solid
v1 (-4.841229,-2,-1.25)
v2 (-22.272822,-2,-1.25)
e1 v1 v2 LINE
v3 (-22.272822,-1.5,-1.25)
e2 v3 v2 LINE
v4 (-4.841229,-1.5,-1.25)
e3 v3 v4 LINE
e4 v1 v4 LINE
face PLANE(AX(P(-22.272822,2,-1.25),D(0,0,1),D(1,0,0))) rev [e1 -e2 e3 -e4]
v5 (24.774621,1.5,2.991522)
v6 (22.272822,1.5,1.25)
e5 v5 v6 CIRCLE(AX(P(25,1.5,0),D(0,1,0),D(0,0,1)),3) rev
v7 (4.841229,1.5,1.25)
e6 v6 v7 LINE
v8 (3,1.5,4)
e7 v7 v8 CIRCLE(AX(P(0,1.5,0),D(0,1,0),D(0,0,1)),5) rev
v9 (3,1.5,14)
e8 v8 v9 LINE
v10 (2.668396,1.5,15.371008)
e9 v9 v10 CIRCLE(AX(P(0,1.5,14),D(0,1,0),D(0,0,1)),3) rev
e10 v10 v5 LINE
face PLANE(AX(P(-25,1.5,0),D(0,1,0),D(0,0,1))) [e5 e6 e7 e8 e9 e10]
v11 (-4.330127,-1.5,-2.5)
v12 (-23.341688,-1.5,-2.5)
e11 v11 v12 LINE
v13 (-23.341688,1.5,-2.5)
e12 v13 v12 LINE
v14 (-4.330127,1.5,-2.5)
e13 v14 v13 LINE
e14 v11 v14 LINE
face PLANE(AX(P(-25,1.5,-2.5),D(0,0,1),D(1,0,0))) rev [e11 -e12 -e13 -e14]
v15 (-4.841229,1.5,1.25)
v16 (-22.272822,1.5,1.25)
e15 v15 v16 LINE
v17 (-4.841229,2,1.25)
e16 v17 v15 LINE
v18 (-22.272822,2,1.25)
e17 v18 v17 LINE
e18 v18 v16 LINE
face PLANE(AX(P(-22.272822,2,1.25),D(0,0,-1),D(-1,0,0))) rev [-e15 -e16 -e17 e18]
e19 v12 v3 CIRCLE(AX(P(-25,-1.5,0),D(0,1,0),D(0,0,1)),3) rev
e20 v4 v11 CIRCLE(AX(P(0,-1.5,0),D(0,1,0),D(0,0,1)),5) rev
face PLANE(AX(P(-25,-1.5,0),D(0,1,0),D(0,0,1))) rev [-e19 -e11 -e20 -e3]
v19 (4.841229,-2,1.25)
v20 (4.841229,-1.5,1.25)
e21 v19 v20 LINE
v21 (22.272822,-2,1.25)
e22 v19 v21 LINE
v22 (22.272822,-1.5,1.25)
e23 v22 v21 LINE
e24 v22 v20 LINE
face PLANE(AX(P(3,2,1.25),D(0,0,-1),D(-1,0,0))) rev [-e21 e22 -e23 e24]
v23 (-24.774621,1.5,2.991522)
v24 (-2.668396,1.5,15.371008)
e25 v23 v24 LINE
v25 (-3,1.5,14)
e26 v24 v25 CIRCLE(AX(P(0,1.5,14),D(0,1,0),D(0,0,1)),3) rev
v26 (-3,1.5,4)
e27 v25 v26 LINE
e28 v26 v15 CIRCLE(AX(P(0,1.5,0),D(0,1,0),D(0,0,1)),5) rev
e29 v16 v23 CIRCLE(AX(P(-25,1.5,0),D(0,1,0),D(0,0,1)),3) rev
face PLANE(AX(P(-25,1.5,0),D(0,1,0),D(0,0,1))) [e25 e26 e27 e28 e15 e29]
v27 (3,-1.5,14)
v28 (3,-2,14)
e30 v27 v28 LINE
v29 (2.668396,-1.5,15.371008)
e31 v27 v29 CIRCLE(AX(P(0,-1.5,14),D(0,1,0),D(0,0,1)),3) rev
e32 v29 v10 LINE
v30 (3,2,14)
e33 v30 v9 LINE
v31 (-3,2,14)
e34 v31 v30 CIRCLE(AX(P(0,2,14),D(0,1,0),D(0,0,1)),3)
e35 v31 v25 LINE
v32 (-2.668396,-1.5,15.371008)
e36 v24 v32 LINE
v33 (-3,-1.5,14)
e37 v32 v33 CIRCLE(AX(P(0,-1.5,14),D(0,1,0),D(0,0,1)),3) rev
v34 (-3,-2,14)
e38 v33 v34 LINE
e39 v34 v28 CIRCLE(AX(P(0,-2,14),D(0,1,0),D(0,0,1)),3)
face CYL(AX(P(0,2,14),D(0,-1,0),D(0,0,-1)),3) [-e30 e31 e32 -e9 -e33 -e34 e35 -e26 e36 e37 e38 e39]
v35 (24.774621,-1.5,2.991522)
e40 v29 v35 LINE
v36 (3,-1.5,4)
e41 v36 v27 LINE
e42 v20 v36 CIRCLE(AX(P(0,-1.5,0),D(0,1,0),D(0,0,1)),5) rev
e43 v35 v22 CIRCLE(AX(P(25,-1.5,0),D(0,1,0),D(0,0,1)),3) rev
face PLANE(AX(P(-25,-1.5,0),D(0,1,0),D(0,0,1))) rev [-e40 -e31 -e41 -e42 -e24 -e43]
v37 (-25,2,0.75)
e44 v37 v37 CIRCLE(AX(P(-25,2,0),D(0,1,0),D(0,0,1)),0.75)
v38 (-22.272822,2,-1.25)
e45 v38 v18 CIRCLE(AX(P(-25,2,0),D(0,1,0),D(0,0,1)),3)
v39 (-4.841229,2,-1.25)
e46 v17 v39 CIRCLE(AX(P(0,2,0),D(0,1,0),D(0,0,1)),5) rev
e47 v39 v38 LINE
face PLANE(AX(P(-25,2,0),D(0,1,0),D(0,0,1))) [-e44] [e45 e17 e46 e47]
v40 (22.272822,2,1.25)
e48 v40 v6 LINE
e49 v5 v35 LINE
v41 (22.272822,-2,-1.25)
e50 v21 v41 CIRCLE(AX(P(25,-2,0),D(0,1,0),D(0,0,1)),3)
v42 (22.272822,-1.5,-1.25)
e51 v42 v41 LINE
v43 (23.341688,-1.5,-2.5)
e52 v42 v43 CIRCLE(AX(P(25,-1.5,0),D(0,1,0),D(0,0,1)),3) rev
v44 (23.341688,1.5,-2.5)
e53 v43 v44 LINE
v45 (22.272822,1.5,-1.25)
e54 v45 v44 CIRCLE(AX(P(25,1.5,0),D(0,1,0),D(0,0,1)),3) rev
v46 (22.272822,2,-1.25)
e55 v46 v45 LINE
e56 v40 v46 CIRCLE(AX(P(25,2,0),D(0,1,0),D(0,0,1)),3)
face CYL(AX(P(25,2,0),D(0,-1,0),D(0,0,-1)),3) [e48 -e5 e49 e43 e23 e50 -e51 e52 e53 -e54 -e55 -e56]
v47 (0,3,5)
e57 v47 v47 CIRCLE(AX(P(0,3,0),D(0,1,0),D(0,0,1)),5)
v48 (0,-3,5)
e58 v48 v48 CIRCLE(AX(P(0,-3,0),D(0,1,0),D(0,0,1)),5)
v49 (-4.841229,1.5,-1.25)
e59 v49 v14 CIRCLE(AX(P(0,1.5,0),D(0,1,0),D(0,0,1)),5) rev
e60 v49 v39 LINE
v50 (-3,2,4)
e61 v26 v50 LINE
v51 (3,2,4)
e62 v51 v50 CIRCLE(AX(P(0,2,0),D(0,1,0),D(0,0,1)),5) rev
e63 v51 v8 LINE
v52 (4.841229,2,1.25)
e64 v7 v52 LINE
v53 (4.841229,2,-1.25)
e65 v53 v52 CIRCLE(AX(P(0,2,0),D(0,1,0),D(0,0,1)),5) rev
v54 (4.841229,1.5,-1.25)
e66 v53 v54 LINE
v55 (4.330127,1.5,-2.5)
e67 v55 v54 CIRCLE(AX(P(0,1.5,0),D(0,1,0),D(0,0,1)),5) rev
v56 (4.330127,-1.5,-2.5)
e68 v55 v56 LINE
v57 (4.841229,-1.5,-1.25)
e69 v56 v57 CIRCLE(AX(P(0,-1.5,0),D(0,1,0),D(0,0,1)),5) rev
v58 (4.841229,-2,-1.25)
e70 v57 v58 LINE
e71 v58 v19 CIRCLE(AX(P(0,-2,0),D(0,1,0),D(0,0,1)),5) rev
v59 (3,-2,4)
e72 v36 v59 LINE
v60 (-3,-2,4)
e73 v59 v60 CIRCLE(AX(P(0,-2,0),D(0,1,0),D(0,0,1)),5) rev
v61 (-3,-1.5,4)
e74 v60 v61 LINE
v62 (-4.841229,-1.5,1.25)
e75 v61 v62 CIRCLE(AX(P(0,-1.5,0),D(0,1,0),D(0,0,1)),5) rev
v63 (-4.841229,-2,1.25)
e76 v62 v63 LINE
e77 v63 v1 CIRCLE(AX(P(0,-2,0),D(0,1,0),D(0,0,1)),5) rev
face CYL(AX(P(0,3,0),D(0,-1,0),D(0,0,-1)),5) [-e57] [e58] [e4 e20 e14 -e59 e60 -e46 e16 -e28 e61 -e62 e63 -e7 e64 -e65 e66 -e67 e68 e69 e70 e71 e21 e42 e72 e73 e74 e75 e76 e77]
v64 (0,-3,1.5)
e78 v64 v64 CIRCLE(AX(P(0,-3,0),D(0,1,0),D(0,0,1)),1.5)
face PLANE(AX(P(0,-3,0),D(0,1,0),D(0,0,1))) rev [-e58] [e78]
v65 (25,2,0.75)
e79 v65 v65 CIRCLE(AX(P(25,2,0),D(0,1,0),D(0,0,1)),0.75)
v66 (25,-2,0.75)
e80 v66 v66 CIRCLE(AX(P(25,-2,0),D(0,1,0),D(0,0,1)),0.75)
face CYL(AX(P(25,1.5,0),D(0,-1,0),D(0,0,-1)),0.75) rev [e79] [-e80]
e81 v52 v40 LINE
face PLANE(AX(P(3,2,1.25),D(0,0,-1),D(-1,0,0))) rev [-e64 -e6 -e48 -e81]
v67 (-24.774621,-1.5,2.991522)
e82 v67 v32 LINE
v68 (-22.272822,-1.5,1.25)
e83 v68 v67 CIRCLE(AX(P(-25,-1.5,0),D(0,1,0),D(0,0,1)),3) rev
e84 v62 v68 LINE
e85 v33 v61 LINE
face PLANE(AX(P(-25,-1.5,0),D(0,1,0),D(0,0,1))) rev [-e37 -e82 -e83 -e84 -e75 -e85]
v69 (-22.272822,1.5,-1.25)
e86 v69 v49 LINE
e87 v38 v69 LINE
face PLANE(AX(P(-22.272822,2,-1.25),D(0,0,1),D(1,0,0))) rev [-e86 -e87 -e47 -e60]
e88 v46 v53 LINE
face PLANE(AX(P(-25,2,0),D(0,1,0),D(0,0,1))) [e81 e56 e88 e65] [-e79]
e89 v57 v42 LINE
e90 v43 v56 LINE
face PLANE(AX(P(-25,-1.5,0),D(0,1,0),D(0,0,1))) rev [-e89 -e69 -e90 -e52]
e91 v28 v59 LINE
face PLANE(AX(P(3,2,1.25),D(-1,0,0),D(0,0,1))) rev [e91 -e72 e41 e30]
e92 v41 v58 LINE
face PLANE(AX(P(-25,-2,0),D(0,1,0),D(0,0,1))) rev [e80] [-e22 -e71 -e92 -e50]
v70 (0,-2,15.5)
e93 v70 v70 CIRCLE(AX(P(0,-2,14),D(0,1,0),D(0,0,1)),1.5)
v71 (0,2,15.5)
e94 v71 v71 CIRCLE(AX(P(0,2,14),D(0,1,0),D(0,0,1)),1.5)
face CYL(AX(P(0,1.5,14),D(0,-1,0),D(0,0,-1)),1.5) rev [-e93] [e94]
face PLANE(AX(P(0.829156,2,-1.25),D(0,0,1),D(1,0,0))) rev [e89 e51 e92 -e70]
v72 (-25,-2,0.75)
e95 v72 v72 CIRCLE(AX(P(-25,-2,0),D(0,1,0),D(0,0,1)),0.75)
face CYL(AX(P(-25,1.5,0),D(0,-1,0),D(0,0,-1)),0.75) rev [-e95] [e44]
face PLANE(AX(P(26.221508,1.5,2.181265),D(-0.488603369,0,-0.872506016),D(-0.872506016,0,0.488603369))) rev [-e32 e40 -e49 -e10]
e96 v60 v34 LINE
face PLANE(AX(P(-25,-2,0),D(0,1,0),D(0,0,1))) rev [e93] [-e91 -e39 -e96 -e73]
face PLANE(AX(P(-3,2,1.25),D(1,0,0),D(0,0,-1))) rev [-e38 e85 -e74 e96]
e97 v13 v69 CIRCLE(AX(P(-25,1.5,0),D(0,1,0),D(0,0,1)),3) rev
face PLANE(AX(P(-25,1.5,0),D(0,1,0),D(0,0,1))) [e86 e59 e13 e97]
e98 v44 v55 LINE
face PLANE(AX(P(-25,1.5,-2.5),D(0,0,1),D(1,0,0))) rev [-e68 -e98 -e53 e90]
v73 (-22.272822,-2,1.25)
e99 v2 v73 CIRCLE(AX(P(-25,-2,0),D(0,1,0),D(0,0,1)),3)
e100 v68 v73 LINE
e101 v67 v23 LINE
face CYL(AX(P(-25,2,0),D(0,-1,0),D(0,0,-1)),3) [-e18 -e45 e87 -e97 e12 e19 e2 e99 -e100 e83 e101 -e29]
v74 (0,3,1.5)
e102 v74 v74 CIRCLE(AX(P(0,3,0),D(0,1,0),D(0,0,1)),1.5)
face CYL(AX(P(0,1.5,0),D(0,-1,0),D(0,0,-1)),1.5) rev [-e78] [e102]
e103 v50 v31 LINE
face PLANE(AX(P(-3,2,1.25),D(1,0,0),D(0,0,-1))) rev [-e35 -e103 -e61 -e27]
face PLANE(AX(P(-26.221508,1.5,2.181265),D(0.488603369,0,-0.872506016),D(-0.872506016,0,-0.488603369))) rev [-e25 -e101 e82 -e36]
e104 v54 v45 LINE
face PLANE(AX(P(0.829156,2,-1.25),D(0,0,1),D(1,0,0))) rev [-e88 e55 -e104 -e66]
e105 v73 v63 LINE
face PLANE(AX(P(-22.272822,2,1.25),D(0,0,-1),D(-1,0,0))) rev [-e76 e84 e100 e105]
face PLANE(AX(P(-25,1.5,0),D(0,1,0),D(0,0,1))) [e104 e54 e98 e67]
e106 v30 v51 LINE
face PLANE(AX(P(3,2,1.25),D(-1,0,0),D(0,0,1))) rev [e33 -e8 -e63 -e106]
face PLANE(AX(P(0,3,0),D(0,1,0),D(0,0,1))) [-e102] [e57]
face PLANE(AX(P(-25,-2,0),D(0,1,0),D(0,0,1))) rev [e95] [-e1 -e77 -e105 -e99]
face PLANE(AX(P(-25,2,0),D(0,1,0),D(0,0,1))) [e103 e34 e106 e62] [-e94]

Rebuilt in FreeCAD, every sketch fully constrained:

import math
import FreeCAD as App
import Part
import Sketcher

doc = App.newDocument("Part")
params = doc.addObject("Spreadsheet::Sheet", "Params")
for row, (alias, value) in enumerate([
    ("sketch1_diameter", "3 mm"),
    ("sketch1_diameter2", "1.5 mm"),
    ("sketch1_radius", "2.5 mm"),
    ("sketch1_width", "50 mm"),
    ("pad1_length", "3 mm"),
    ("sketch2_diameter", "3 mm"),
    ("sketch2_radius", "3 mm"),
    ("sketch2_diameter2", "1.5 mm"),
    ("sketch2_height", "12.75 mm"),
    ("pad2_length", "4 mm"),
    ("sketch3_diameter", "10 mm"),
    ("sketch3_diameter2", "3 mm"),
    ("pad3_length", "6 mm"),
], start=1):
    params.set(f"A{row}", alias)
    params.set(f"B{row}", "=" + value)
    params.setAlias(f"B{row}", alias)

body = doc.addObject("PartDesign::Body", "Body")

sketch1 = doc.addObject("Sketcher::SketchObject", "Sketch")
body.addObject(sketch1)
sketch1.AttachmentSupport = (doc.XZ_Plane, [""])
sketch1.MapMode = "FlatFace"
sketch1.addGeometry([
    Part.LineSegment(App.Vector(25, -2.5, 0), App.Vector(-25, -2.5, 0)),
    Part.ArcOfCircle(Part.Circle(App.Vector(-25, 0, 0), App.Vector(0, 0, 1), 2.5), math.radians(119.248826), math.radians(270)),
    Part.LineSegment(App.Vector(-26.221508, 2.181265, 0), App.Vector(-1.221508, 16.181265, 0)),
    Part.ArcOfCircle(Part.Circle(App.Vector(0, 14, 0), App.Vector(0, 0, 1), 2.5), math.radians(60.751174), math.radians(119.248826)),
    Part.LineSegment(App.Vector(1.221508, 16.181265, 0), App.Vector(26.221508, 2.181265, 0)),
    Part.ArcOfCircle(Part.Circle(App.Vector(25, 0, 0), App.Vector(0, 0, 1), 2.5), math.radians(-90), math.radians(60.751174)),
    Part.Circle(App.Vector(0, 14, 0), App.Vector(0, 0, 1), 1.5),
    Part.Circle(App.Vector(25, 0, 0), App.Vector(0, 0, 1), 0.75),
    Part.Circle(App.Vector(0, 0, 0), App.Vector(0, 0, 1), 1.5),
    Part.Circle(App.Vector(-25, 0, 0), App.Vector(0, 0, 1), 0.75),
], False)
sketch1.addConstraint([
    Sketcher.Constraint("Tangent", 0, 2, 1, 2),
    Sketcher.Constraint("Tangent", 1, 1, 2, 1),
    Sketcher.Constraint("Tangent", 2, 2, 3, 2),
    Sketcher.Constraint("Tangent", 3, 1, 4, 1),
    Sketcher.Constraint("Tangent", 4, 2, 5, 2),
    Sketcher.Constraint("Tangent", 5, 1, 0, 1),
    Sketcher.Constraint("Horizontal", 0),
    Sketcher.Constraint("Coincident", 8, 3, -1, 1),
    Sketcher.Constraint("Coincident", 6, 3, 3, 3),
    Sketcher.Constraint("Coincident", 7, 3, 5, 3),
    Sketcher.Constraint("Coincident", 9, 3, 1, 3),
    Sketcher.Constraint("Equal", 1, 3),
    Sketcher.Constraint("Equal", 3, 5),
    Sketcher.Constraint("Equal", 6, 8),
    Sketcher.Constraint("Equal", 7, 9),
    Sketcher.Constraint("Symmetric", 1, 3, 5, 3, -1, 1),
    Sketcher.Constraint("PointOnObject", 3, 3, -2),
    Sketcher.Constraint("Diameter", 6, 3.0),
    Sketcher.Constraint("Diameter", 7, 1.5),
    Sketcher.Constraint("Radius", 1, 2.5),
    Sketcher.Constraint("DistanceX", 0, 2, 0, 1, 50.0),
    Sketcher.Constraint("DistanceY", -1, 1, 3, 3, 14.0),
])
sketch1.setExpression("Constraints[17]", "Params.sketch1_diameter")
sketch1.setExpression("Constraints[18]", "Params.sketch1_diameter2")
sketch1.setExpression("Constraints[19]", "Params.sketch1_radius")
sketch1.setExpression("Constraints[20]", "Params.sketch1_width")
pad1 = doc.addObject("PartDesign::Pad", "Pad")
body.addObject(pad1)
pad1.Profile = sketch1
pad1.setExpression("Length", "Params.pad1_length")
pad1.Midplane = True

sketch2 = doc.addObject("Sketcher::SketchObject", "Sketch001")
body.addObject(sketch2)
sketch2.AttachmentSupport = (doc.XZ_Plane, [""])
sketch2.MapMode = "FlatFace"
sketch2.addGeometry([
    Part.LineSegment(App.Vector(-0.829156, -1.25, 0), App.Vector(-22.272822, -1.25, 0)),
    Part.ArcOfCircle(Part.Circle(App.Vector(-25, 0, 0), App.Vector(0, 0, 1), 3), math.radians(24.624318), math.radians(335.375682)),
    Part.LineSegment(App.Vector(-22.272822, 1.25, 0), App.Vector(-3, 1.25, 0)),
    Part.LineSegment(App.Vector(-3, 1.25, 0), App.Vector(-3, 14, 0)),
    Part.ArcOfCircle(Part.Circle(App.Vector(0, 14, 0), App.Vector(0, 0, 1), 3), math.radians(0), math.radians(180)),
    Part.LineSegment(App.Vector(3, 14, 0), App.Vector(3, 1.25, 0)),
    Part.LineSegment(App.Vector(3, 1.25, 0), App.Vector(22.272822, 1.25, 0)),
    Part.ArcOfCircle(Part.Circle(App.Vector(25, 0, 0), App.Vector(0, 0, 1), 3), math.radians(-155.375682), math.radians(155.375682)),
    Part.LineSegment(App.Vector(22.272822, -1.25, 0), App.Vector(0.829156, -1.25, 0)),
    Part.ArcOfCircle(Part.Circle(App.Vector(0, 0, 0), App.Vector(0, 0, 1), 1.5), math.radians(-56.44269), math.radians(236.44269)),
    Part.Circle(App.Vector(0, 14, 0), App.Vector(0, 0, 1), 1.5),
    Part.Circle(App.Vector(25, 0, 0), App.Vector(0, 0, 1), 0.75),
    Part.Circle(App.Vector(-25, 0, 0), App.Vector(0, 0, 1), 0.75),
], False)
sketch2.addConstraint([
    Sketcher.Constraint("Coincident", 0, 2, 1, 2),
    Sketcher.Constraint("Coincident", 1, 1, 2, 1),
    Sketcher.Constraint("Coincident", 2, 2, 3, 1),
    Sketcher.Constraint("Tangent", 3, 2, 4, 2),
    Sketcher.Constraint("Tangent", 4, 1, 5, 1),
    Sketcher.Constraint("Coincident", 5, 2, 6, 1),
    Sketcher.Constraint("Coincident", 6, 2, 7, 2),
    Sketcher.Constraint("Coincident", 7, 1, 8, 1),
    Sketcher.Constraint("Coincident", 8, 2, 9, 1),
    Sketcher.Constraint("Coincident", 9, 2, 0, 1),
    Sketcher.Constraint("Horizontal", 0),
    Sketcher.Constraint("Horizontal", 2),
    Sketcher.Constraint("Vertical", 3),
    Sketcher.Constraint("Vertical", 5),
    Sketcher.Constraint("Horizontal", 6),
    Sketcher.Constraint("Horizontal", 8),
    Sketcher.Constraint("Coincident", 9, 3, -1, 1),
    Sketcher.Constraint("Coincident", 10, 3, 4, 3),
    Sketcher.Constraint("Coincident", 11, 3, 7, 3),
    Sketcher.Constraint("Coincident", 12, 3, 1, 3),
    Sketcher.Constraint("Equal", 1, 4),
    Sketcher.Constraint("Equal", 4, 7),
    Sketcher.Constraint("Equal", 9, 10),
    Sketcher.Constraint("Equal", 11, 12),
    Sketcher.Constraint("Symmetric", 1, 3, 7, 3, -1, 1),
    Sketcher.Constraint("Symmetric", 2, 2, 5, 2, -2),
    Sketcher.Constraint("Symmetric", 0, 2, 7, 1, -2),
    Sketcher.Constraint("Vertical", 0, 2, 1, 1),
    Sketcher.Constraint("Diameter", 10, 3.0),
    Sketcher.Constraint("Radius", 1, 3.0),
    Sketcher.Constraint("Diameter", 11, 1.5),
    Sketcher.Constraint("DistanceX", 1, 3, -1, 1, 25.0),
    Sketcher.Constraint("DistanceY", -1, 1, 4, 3, 14.0),
    Sketcher.Constraint("DistanceY", 3, 1, 3, 2, 12.75),
])
sketch2.setExpression("Constraints[28]", "Params.sketch2_diameter")
sketch2.setExpression("Constraints[29]", "Params.sketch2_radius")
sketch2.setExpression("Constraints[30]", "Params.sketch2_diameter2")
sketch2.setExpression("Constraints[33]", "Params.sketch2_height")
pad2 = doc.addObject("PartDesign::Pad", "Pad001")
body.addObject(pad2)
pad2.Profile = sketch2
pad2.setExpression("Length", "Params.pad2_length")
pad2.Midplane = True

sketch3 = doc.addObject("Sketcher::SketchObject", "Sketch002")
body.addObject(sketch3)
sketch3.AttachmentSupport = (doc.XZ_Plane, [""])
sketch3.MapMode = "FlatFace"
sketch3.addGeometry([
    Part.Circle(App.Vector(0, 0, 0), App.Vector(0, 0, 1), 5),
    Part.Circle(App.Vector(0, 0, 0), App.Vector(0, 0, 1), 1.5),
], False)
sketch3.addConstraint([
    Sketcher.Constraint("Coincident", 0, 3, -1, 1),
    Sketcher.Constraint("Coincident", 1, 3, -1, 1),
    Sketcher.Constraint("Diameter", 0, 10.0),
    Sketcher.Constraint("Diameter", 1, 3.0),
])
sketch3.setExpression("Constraints[2]", "Params.sketch3_diameter")
sketch3.setExpression("Constraints[3]", "Params.sketch3_diameter2")
pad3 = doc.addObject("PartDesign::Pad", "Pad002")
body.addObject(pad3)
pad3.Profile = sketch3
pad3.setExpression("Length", "Params.pad3_length")
pad3.Midplane = True

doc.recompute()
